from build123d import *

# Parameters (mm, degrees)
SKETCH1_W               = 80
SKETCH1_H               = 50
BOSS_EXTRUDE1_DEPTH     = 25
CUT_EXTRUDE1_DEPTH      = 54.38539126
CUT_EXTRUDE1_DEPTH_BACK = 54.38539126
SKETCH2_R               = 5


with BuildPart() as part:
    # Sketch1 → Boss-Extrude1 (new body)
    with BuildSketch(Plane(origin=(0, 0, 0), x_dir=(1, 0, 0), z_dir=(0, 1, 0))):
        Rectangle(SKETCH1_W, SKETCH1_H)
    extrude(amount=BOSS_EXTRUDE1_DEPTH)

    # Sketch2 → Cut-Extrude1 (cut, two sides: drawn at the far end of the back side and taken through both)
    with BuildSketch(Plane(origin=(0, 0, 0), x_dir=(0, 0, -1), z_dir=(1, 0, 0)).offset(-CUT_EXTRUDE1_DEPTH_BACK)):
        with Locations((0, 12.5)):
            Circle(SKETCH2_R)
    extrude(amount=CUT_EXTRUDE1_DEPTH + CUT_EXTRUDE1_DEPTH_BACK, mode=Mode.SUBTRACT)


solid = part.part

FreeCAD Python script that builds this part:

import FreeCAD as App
import Part
import Sketcher
from FreeCAD import Vector


def add_polygon(sketch, points):
    """Adds a closed chain of lines whose ends are joined by coincident constraints."""
    first, n = sketch.GeometryCount, len(points)
    for a, b in zip(points, points[1:] + points[:1]):
        sketch.addGeometry(Part.LineSegment(App.Vector(*a, 0), App.Vector(*b, 0)), False)
    for i in range(n):
        sketch.addConstraint(Sketcher.Constraint("Coincident", first + i, 2, first + (i + 1) % n, 1))

doc = App.newDocument("Part")
body = doc.addObject("PartDesign::Body", "Body")

sketch1 = body.newObject("Sketcher::SketchObject", "Sketch")
sketch1.AttachmentSupport = (doc.getObject("XZ_Plane"), [""])
sketch1.MapMode = "FlatFace"
add_polygon(sketch1, [(-40, -25), (-40, 25), (40, 25), (40, -25)])
sketch1.addConstraint([
    Sketcher.Constraint("Vertical", 0),
    Sketcher.Constraint("Horizontal", 1),
    Sketcher.Constraint("Vertical", 2),
    Sketcher.Constraint("Horizontal", 3),
    Sketcher.Constraint("Symmetric", 0, 2, 2, 2, -1, 1),
    Sketcher.Constraint("DistanceX", 1, 1, 1, 2, 80.0),
    Sketcher.Constraint("DistanceY", 0, 1, 0, 2, 50.0),
])
pad1 = body.newObject("PartDesign::Pad", "Pad")
pad1.Profile = sketch1
pad1.Length = 25
pad1.Reversed = True

sketch2 = body.newObject("Sketcher::SketchObject", "Sketch001")
sketch2.AttachmentSupport = (doc.getObject("YZ_Plane"), [""])
sketch2.MapMode = "FlatFace"
sketch2.addGeometry(Part.Circle(Vector(12.5, 0, 0), Vector(0, 0, 1), 5), False)
sketch2.addConstraint([
    Sketcher.Constraint("PointOnObject", 0, 3, -1),
    Sketcher.Constraint("Diameter", 0, 10.0),
    Sketcher.Constraint("DistanceX", -1, 1, 0, 3, 12.5),
])
pocket1 = body.newObject("PartDesign::Pocket", "Pocket")
pocket1.Profile = sketch2
pocket1.Type = "ThroughAll"
pocket1.Midplane = True

doc.recompute()
